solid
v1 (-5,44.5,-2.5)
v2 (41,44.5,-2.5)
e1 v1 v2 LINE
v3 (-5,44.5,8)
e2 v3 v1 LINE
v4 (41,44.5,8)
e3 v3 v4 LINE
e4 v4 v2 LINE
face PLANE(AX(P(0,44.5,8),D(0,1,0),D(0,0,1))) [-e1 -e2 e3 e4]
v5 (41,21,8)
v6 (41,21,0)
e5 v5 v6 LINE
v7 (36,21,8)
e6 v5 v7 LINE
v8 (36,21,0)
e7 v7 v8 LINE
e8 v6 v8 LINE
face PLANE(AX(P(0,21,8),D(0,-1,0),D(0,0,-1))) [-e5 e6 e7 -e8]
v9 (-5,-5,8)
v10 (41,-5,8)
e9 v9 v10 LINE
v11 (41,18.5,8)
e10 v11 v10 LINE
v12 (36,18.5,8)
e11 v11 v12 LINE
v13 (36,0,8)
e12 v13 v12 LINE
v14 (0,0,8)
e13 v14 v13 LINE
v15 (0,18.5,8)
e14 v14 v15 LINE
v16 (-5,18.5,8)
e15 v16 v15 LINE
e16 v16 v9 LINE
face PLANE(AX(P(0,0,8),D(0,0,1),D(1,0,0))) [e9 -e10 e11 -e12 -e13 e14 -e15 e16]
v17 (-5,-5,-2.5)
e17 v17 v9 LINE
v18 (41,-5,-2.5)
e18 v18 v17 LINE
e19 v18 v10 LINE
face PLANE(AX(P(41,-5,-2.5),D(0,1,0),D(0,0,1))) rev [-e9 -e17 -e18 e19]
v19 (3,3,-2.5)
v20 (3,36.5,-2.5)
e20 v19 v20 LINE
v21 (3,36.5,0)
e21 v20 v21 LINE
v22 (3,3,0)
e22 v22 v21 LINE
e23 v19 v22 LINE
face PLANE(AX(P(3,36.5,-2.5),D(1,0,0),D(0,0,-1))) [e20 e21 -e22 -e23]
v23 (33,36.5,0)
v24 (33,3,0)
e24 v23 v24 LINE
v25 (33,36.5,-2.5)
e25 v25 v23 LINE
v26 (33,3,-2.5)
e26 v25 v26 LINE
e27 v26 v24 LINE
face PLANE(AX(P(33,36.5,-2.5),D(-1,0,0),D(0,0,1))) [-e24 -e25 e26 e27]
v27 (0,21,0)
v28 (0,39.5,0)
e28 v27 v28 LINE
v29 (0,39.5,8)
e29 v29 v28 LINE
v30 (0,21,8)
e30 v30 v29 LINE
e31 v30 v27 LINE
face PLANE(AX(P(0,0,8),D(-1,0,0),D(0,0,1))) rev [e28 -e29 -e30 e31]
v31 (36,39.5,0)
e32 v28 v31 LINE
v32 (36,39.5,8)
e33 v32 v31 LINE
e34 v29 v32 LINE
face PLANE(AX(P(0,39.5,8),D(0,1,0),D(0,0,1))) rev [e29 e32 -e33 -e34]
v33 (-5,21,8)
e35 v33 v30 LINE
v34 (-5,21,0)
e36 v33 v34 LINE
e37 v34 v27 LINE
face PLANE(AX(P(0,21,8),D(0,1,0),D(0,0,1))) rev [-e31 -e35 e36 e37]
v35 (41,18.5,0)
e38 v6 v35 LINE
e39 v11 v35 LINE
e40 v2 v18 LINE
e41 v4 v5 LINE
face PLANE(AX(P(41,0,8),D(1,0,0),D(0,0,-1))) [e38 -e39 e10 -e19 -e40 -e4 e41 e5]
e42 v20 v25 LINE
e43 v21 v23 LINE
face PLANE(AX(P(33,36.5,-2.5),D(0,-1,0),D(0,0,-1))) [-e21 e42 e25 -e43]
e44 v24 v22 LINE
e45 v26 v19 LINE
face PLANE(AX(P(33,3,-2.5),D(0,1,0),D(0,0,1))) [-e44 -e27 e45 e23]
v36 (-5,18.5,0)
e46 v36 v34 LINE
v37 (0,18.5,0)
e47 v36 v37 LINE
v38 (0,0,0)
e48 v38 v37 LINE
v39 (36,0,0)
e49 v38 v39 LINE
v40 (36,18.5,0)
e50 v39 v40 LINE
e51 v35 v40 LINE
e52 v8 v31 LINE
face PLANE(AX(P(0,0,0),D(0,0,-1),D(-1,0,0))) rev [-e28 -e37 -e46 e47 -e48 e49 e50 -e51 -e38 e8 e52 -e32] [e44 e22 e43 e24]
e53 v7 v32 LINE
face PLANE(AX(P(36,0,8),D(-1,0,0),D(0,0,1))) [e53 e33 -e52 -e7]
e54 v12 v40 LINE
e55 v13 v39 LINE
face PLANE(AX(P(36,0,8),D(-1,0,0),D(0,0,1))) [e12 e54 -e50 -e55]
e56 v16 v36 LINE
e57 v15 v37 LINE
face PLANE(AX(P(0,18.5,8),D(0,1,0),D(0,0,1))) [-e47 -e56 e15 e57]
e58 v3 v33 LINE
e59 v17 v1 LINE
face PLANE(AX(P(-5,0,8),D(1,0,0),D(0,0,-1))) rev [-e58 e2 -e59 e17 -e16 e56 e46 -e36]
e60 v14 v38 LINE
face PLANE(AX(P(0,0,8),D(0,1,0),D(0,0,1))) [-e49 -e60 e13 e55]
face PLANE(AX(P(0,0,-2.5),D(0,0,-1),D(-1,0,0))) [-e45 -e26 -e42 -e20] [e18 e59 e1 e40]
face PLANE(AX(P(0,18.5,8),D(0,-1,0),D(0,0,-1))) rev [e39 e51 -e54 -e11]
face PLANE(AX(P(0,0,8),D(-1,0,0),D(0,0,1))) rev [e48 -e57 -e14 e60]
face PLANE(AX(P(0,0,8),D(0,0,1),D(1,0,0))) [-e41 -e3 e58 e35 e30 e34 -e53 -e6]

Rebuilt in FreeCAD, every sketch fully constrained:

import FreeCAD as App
import Part
import Sketcher
from FreeCAD import Vector


def add_polygon(sketch, points):
    """Adds a closed chain of lines whose ends are joined by coincident constraints."""
    first, n = sketch.GeometryCount, len(points)
    for a, b in zip(points, points[1:] + points[:1]):
        sketch.addGeometry(Part.LineSegment(App.Vector(*a, 0), App.Vector(*b, 0)), False)
    for i in range(n):
        sketch.addConstraint(Sketcher.Constraint("Coincident", first + i, 2, first + (i + 1) % n, 1))

doc = App.newDocument("Part")
params = doc.addObject("Spreadsheet::Sheet", "Params")
for row, (alias, value) in enumerate([
    ("sketch1_width", "5 mm"),
    ("sketch1_width2", "36 mm"),
    ("sketch1_height", "18.5 mm"),
    ("sketch1_height2", "23.5 mm"),
    ("pad1_length", "8 mm"),
    ("sketch2_width", "36 mm"),
    ("sketch2_width2", "5 mm"),
    ("sketch2_height", "18.5 mm"),
    ("sketch2_height2", "23.5 mm"),
    ("pad2_length", "8 mm"),
    ("sketch3_width", "46 mm"),
    ("sketch3_width2", "30 mm"),
    ("sketch3_height", "49.5 mm"),
    ("sketch3_height2", "33.5 mm"),
    ("pad3_length", "2.5 mm"),
], start=1):
    params.set(f"A{row}", alias)
    params.set(f"B{row}", "=" + value)
    params.setAlias(f"B{row}", alias)

body = doc.addObject("PartDesign::Body", "Body")

# Sketch on XY plane
sketch1 = body.newObject("Sketcher::SketchObject", "Sketch")
sketch1.AttachmentSupport = (doc.getObject("XY_Plane"), [""])
sketch1.MapMode = "FlatFace"
add_polygon(sketch1, [(-5, 21), (0, 21), (0, 40), (36, 40), (36, 21), (41, 21), (41, 44), (-5, 44)])  # lines 0-7
sketch1.addConstraint([
    Sketcher.Constraint("Horizontal", 0),
    Sketcher.Constraint("Vertical", 1),
    Sketcher.Constraint("Horizontal", 2),
    Sketcher.Constraint("Vertical", 3),
    Sketcher.Constraint("Horizontal", 4),
    Sketcher.Constraint("Vertical", 5),
    Sketcher.Constraint("Horizontal", 6),
    Sketcher.Constraint("Vertical", 7),
    Sketcher.Constraint("PointOnObject", 0, 2, -2),
    Sketcher.Constraint("Horizontal", 0, 2, 3, 2),
    Sketcher.Constraint("Equal", 0, 4),
    Sketcher.Constraint("DistanceX", 0, 1, 0, 2, 5.0),
    Sketcher.Constraint("DistanceX", 2, 1, 2, 2, 36.0),
    Sketcher.Constraint("DistanceY", 1, 1, 1, 2, 18.5),
    Sketcher.Constraint("DistanceY", 5, 1, 5, 2, 23.5),
    Sketcher.Constraint("DistanceY", -1, 1, 0, 2, 21.0),
])
sketch1.setExpression("Constraints[19]", "Params.sketch1_width")
sketch1.setExpression("Constraints[20]", "Params.sketch1_width2")
sketch1.setExpression("Constraints[21]", "Params.sketch1_height")
sketch1.setExpression("Constraints[22]", "Params.sketch1_height2")
pad1 = body.newObject("PartDesign::Pad", "Pad")
pad1.Profile = sketch1
pad1.setExpression("Length", "Params.pad1_length")
body2 = doc.addObject("PartDesign::Body", "Body001")

# Sketch on XY plane
sketch2 = body2.newObject("Sketcher::SketchObject", "Sketch001")
sketch2.AttachmentSupport = (doc.getObject("XY_Plane001"), [""])
sketch2.MapMode = "FlatFace"
add_polygon(sketch2, [(36, 0), (0, 0), (0, 18), (-5, 18), (-5, -5), (41, -5), (41, 18), (36, 18)])  # lines 0-7
sketch2.addConstraint([
    Sketcher.Constraint("Horizontal", 0),
    Sketcher.Constraint("Vertical", 1),
    Sketcher.Constraint("Horizontal", 2),
    Sketcher.Constraint("Vertical", 3),
    Sketcher.Constraint("Horizontal", 4),
    Sketcher.Constraint("Vertical", 5),
    Sketcher.Constraint("Horizontal", 6),
    Sketcher.Constraint("Vertical", 7),
    Sketcher.Constraint("Coincident", 0, 2, -1, 1),
    Sketcher.Constraint("Horizontal", 2, 2, 5, 2),
    Sketcher.Constraint("Equal", 2, 6),
    Sketcher.Constraint("DistanceX", 0, 2, 0, 1, 36.0),
    Sketcher.Constraint("DistanceX", 2, 2, 2, 1, 5.0),
    Sketcher.Constraint("DistanceY", 1, 1, 1, 2, 18.5),
    Sketcher.Constraint("DistanceY", 3, 2, 3, 1, 23.5),
])
sketch2.setExpression("Constraints[19]", "Params.sketch2_width")
sketch2.setExpression("Constraints[20]", "Params.sketch2_width2")
sketch2.setExpression("Constraints[21]", "Params.sketch2_height")
sketch2.setExpression("Constraints[22]", "Params.sketch2_height2")
pad2 = body2.newObject("PartDesign::Pad", "Pad001")
pad2.Profile = sketch2
pad2.setExpression("Length", "Params.pad2_length")
body.AllowCompound = True
doc.recompute()

boolean = body.newObject("PartDesign::Boolean", "Boolean")
boolean.Type = "Fuse"
boolean.addObjects([body2])

# Sketch on XY plane
sketch3 = body.newObject("Sketcher::SketchObject", "Sketch002")
sketch3.AttachmentSupport = (doc.getObject("XY_Plane"), [""])
sketch3.MapMode = "FlatFace"
add_polygon(sketch3, [(41, 44), (41, -5), (-5, -5), (-5, 44)])  # lines 0-3
add_polygon(sketch3, [(3, 3), (33, 3), (33, 36), (3, 36)])  # lines 4-7
sketch3.addConstraint([
    Sketcher.Constraint("Vertical", 0),
    Sketcher.Constraint("Horizontal", 1),
    Sketcher.Constraint("Vertical", 2),
    Sketcher.Constraint("Horizontal", 3),
    Sketcher.Constraint("Horizontal", 4),
    Sketcher.Constraint("Vertical", 5),
    Sketcher.Constraint("Horizontal", 6),
    Sketcher.Constraint("Vertical", 7),
    Sketcher.Constraint("DistanceX", 1, 2, 1, 1, 46.0),
    Sketcher.Constraint("DistanceX", 4, 1, 4, 2, 30.0),
    Sketcher.Constraint("DistanceY", 0, 2, 0, 1, 49.5),
    Sketcher.Constraint("DistanceY", 5, 1, 5, 2, 33.5),
    Sketcher.Constraint("DistanceX", -1, 1, 0, 2, 41.0),
    Sketcher.Constraint("DistanceY", 0, 2, -1, 1, 5.0),
    Sketcher.Constraint("DistanceX", -1, 1, 4, 2, 33.0),
    Sketcher.Constraint("DistanceY", -1, 1, 4, 2, 3.0),
])
sketch3.setExpression("Constraints[16]", "Params.sketch3_width")
sketch3.setExpression("Constraints[17]", "Params.sketch3_width2")
sketch3.setExpression("Constraints[18]", "Params.sketch3_height")
sketch3.setExpression("Constraints[19]", "Params.sketch3_height2")
pad3 = body.newObject("PartDesign::Pad", "Pad002")
pad3.Profile = sketch3
pad3.setExpression("Length", "Params.pad3_length")
pad3.Reversed = True

doc.recompute()
